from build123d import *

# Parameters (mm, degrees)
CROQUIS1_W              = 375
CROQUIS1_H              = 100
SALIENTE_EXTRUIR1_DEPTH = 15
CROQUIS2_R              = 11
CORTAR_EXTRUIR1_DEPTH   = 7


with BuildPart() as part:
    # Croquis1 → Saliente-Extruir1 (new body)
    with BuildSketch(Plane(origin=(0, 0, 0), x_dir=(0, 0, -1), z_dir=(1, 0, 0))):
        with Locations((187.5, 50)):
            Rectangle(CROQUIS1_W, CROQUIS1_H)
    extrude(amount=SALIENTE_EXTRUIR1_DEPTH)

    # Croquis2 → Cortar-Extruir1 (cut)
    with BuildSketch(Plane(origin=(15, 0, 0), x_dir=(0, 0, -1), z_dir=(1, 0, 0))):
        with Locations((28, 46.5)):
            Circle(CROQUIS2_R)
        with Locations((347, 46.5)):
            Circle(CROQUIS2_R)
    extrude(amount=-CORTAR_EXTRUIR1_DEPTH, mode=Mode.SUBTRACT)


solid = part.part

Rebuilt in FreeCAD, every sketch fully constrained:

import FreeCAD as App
import Part
import Sketcher
from FreeCAD import Vector

doc = App.newDocument("Part")
body = doc.addObject("PartDesign::Body", "Body")

sketch1 = body.newObject("Sketcher::SketchObject", "Sketch")
sketch1.AttachmentSupport = (doc.getObject("YZ_Plane"), [""])
sketch1.MapMode = "FlatFace"
sketch1.addGeometry([
    Part.LineSegment(Vector(100, 0, 0), Vector(0, 0, 0)),
    Part.LineSegment(Vector(0, 0, 0), Vector(0, -375, 0)),
    Part.LineSegment(Vector(0, -375, 0), Vector(100, -375, 0)),
    Part.LineSegment(Vector(100, -375, 0), Vector(100, 0, 0)),
], False)
sketch1.addConstraint([
    Sketcher.Constraint("Coincident", 0, 2, 1, 1),
    Sketcher.Constraint("Coincident", 1, 2, 2, 1),
    Sketcher.Constraint("Coincident", 2, 2, 3, 1),
    Sketcher.Constraint("Coincident", 3, 2, 0, 1),
    Sketcher.Constraint("Horizontal", 0),
    Sketcher.Constraint("Vertical", 1),
    Sketcher.Constraint("Horizontal", 2),
    Sketcher.Constraint("Vertical", 3),
    Sketcher.Constraint("Coincident", 0, 2, -1, 1),
    Sketcher.Constraint("DistanceX", 0, 2, 0, 1, 100.0),
    Sketcher.Constraint("DistanceY", 1, 2, 1, 1, 375.0),
])
pad1 = body.newObject("PartDesign::Pad", "Pad")
pad1.Profile = sketch1
pad1.Length = 15

sketch2 = body.newObject("Sketcher::SketchObject", "Sketch001")
sketch2.AttachmentSupport = (doc.getObject("YZ_Plane"), [""])
sketch2.MapMode = "FlatFace"
sketch2.AttachmentOffset = App.Placement(Vector(0, 0, 15), App.Rotation())
sketch2.addGeometry([
    Part.Circle(Vector(46, -28, 0), Vector(0, 0, 1), 11),
    Part.Circle(Vector(46, -347, 0), Vector(0, 0, 1), 11),
], False)
sketch2.addConstraint([
    Sketcher.Constraint("Equal", 0, 1),
    Sketcher.Constraint("Vertical", 0, 3, 1, 3),
    Sketcher.Constraint("Diameter", 0, 22.0),
    Sketcher.Constraint("DistanceY", 0, 3, -1, 1, 28.0),
    Sketcher.Constraint("DistanceY", 1, 3, -1, 1, 347.0),
    Sketcher.Constraint("DistanceX", -1, 1, 0, 3, 46.5),
])
pocket1 = body.newObject("PartDesign::Pocket", "Pocket")
pocket1.Profile = sketch2
pocket1.Length = 7

doc.recompute()
